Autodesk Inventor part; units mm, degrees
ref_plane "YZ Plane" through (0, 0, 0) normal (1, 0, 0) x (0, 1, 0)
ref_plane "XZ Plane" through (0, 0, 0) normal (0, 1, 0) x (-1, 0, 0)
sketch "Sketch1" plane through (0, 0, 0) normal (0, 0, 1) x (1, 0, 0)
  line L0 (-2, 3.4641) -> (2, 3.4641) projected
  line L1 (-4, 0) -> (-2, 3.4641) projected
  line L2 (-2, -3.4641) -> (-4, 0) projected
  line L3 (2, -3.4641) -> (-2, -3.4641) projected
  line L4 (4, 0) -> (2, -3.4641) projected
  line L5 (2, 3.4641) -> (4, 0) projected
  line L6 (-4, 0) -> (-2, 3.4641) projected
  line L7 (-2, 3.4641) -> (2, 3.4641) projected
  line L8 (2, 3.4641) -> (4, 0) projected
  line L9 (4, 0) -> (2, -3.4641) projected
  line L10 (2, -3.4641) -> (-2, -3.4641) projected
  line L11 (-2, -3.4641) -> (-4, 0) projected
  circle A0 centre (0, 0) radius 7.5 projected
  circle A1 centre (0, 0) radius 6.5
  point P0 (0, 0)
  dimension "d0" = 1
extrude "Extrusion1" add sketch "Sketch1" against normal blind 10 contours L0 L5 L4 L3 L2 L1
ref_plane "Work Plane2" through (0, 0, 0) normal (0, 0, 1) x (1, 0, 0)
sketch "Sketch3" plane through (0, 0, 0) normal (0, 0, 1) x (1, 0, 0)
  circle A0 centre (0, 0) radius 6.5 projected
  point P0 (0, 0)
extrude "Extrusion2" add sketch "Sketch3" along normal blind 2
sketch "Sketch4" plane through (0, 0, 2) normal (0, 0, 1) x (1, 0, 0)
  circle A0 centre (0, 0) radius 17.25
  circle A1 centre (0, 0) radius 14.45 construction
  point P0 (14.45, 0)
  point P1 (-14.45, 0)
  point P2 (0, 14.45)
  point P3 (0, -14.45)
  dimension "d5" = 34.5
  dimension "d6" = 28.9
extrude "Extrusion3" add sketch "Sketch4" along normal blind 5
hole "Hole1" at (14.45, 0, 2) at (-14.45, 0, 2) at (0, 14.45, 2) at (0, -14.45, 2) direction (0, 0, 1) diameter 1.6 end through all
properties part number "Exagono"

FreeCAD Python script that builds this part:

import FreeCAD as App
import Part
import Sketcher

V = App.Vector
Q = App.Units.Quantity

doc = App.newDocument("Part")
body = doc.addObject("PartDesign::Body", "Body")

# Sketch on XY plane
sketch1 = doc.addObject("Sketcher::SketchObject", "Sketch")
body.addObject(sketch1)
sketch1.AttachmentSupport = (doc.XY_Plane, [""])
sketch1.MapMode = "FlatFace"
sketch1.addGeometry([
    Part.LineSegment(V(2, 3.5, 0), V(-2, 3.5, 0)),  # 0
    Part.LineSegment(V(-2, 3.5, 0), V(-4, 0, 0)),  # 1
    Part.LineSegment(V(-4, 0, 0), V(-2, -3.5, 0)),  # 2
    Part.LineSegment(V(-2, -3.5, 0), V(2, -3.5, 0)),  # 3
    Part.LineSegment(V(2, -3.5, 0), V(4, 0, 0)),  # 4
    Part.LineSegment(V(4, 0, 0), V(2, 3.5, 0)),  # 5
], False)
sketch1.addConstraint([
    Sketcher.Constraint("Coincident", 0, 2, 1, 1),
    Sketcher.Constraint("Coincident", 1, 2, 2, 1),
    Sketcher.Constraint("Coincident", 2, 2, 3, 1),
    Sketcher.Constraint("Coincident", 3, 2, 4, 1),
    Sketcher.Constraint("Coincident", 4, 2, 5, 1),
    Sketcher.Constraint("Coincident", 5, 2, 0, 1),
    Sketcher.Constraint("Horizontal", 0),
    Sketcher.Constraint("Horizontal", 3),
    Sketcher.Constraint("Symmetric", 0, 2, 3, 2, -1, 1),
    Sketcher.Constraint("Symmetric", 1, 2, 4, 2, -1, 1),
    Sketcher.Constraint("PointOnObject", 1, 2, -1),
    Sketcher.Constraint("Parallel", 2, 5),
    Sketcher.Constraint("Vertical", 0, 2, 2, 2),
    Sketcher.Constraint("DistanceX", 0, 2, 0, 1, Q("4 mm")),
    Sketcher.Constraint("Angle", 1, Q("-120 deg")),
    Sketcher.Constraint("Distance", 1, Q("4 mm")),
])
pad1 = doc.addObject("PartDesign::Pad", "Pad")
body.addObject(pad1)
pad1.Profile = sketch1
pad1.Length = 10
pad1.Reversed = True

# Sketch on XY plane
sketch2 = doc.addObject("Sketcher::SketchObject", "Sketch001")
body.addObject(sketch2)
sketch2.AttachmentSupport = (doc.XY_Plane, [""])
sketch2.MapMode = "FlatFace"
sketch2.addGeometry(Part.Circle(V(0, 0, 0), V(0, 0, 1), 6), False)
sketch2.addConstraint([
    Sketcher.Constraint("Coincident", 0, 3, -1, 1),
    Sketcher.Constraint("Diameter", 0, Q("13 mm")),
])
pad2 = doc.addObject("PartDesign::Pad", "Pad001")
body.addObject(pad2)
pad2.Profile = sketch2
pad2.Length = 2

# Sketch on XY plane
sketch3 = doc.addObject("Sketcher::SketchObject", "Sketch002")
body.addObject(sketch3)
sketch3.AttachmentSupport = (doc.XY_Plane, [""])
sketch3.MapMode = "FlatFace"
sketch3.AttachmentOffset = App.Placement(V(0, 0, 2), App.Rotation())
sketch3.addGeometry(Part.Circle(V(0, 0, 0), V(0, 0, 1), 17), False)
sketch3.addConstraint([
    Sketcher.Constraint("Coincident", 0, 3, -1, 1),
    Sketcher.Constraint("Diameter", 0, Q("34.5 mm")),
])
pad3 = doc.addObject("PartDesign::Pad", "Pad002")
body.addObject(pad3)
pad3.Profile = sketch3
pad3.Length = 5

# Sketch on XY plane
sketch4 = doc.addObject("Sketcher::SketchObject", "Sketch003")
body.addObject(sketch4)
sketch4.AttachmentSupport = (doc.XY_Plane, [""])
sketch4.MapMode = "FlatFace"
sketch4.AttachmentOffset = App.Placement(V(0, 0, 2), App.Rotation())
sketch4.addGeometry([
    Part.Circle(V(14.4, 0, 0), V(0, 0, 1), 0.8),
    Part.Circle(V(-14.4, 0, 0), V(0, 0, 1), 0.8),
    Part.Circle(V(0, 14.4, 0), V(0, 0, 1), 0.8),
    Part.Circle(V(0, -14.4, 0), V(0, 0, 1), 0.8),
], False)
sketch4.addConstraint([
    Sketcher.Constraint("Equal", 0, 1),
    Sketcher.Constraint("Equal", 1, 2),
    Sketcher.Constraint("Equal", 2, 3),
    Sketcher.Constraint("Symmetric", 0, 3, 1, 3, -1, 1),
    Sketcher.Constraint("Symmetric", 2, 3, 3, 3, -1, 1),
    Sketcher.Constraint("PointOnObject", 0, 3, -1),
    Sketcher.Constraint("PointOnObject", 2, 3, -2),
    Sketcher.Constraint("Diameter", 0, Q("1.6 mm")),
    Sketcher.Constraint("DistanceX", 1, 3, 0, 3, Q("28.9 mm")),
    Sketcher.Constraint("DistanceY", 3, 3, 2, 3, Q("28.9 mm")),
])
doc.recompute()
hole = doc.addObject("PartDesign::Hole", "Hole")
body.addObject(hole)
hole.Profile = sketch4
hole.ThreadType = "None"
hole.Diameter = 1.6
hole.DepthType = "ThroughAll"
hole.Reversed = True

doc.recompute()
